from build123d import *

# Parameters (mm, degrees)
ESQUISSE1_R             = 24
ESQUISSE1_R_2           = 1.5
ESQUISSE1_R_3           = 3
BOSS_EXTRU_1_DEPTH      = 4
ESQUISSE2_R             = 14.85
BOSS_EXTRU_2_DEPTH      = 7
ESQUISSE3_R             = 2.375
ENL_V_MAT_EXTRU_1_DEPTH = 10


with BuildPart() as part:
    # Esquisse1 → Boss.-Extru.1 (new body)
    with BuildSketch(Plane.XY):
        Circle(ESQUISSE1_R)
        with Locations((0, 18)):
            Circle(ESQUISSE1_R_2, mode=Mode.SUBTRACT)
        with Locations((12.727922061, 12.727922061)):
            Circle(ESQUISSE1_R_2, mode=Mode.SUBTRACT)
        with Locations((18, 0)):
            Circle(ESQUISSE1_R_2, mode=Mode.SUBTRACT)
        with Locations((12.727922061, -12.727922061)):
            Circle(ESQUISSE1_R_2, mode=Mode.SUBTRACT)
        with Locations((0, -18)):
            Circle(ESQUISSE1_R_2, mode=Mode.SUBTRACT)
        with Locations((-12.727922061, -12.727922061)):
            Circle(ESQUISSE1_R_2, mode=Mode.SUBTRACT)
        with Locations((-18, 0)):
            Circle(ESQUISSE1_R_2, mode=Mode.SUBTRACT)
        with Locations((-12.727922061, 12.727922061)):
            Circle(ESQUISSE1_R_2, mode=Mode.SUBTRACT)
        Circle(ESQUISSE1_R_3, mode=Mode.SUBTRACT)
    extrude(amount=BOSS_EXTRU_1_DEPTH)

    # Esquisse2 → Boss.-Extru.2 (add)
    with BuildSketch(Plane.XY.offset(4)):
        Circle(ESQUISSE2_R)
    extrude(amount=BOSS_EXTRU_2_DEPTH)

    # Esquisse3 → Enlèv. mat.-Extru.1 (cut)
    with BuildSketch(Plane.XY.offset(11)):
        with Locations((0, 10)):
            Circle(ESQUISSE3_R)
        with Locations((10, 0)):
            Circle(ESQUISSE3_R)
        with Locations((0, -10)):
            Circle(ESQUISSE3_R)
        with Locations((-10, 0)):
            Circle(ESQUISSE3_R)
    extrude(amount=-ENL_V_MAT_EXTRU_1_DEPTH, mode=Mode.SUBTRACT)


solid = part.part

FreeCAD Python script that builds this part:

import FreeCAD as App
import Part
import Sketcher

doc = App.newDocument("Part")
body = doc.addObject("PartDesign::Body", "Body")

sketch1 = body.newObject("Sketcher::SketchObject", "Sketch")
sketch1.AttachmentSupport = (doc.getObject("XY_Plane"), [""])
sketch1.MapMode = "FlatFace"
sketch1.addGeometry([
    Part.Circle(App.Vector(0, 0, 0), App.Vector(0, 0, 1), 24),
    Part.Circle(App.Vector(-12.7, -12.7, 0), App.Vector(0, 0, 1), 1.5),
    Part.Circle(App.Vector(0, -18, 0), App.Vector(0, 0, 1), 1.5),
    Part.Circle(App.Vector(12.7, -12.7, 0), App.Vector(0, 0, 1), 1.5),
    Part.Circle(App.Vector(-18, 0, 0), App.Vector(0, 0, 1), 1.5),
    Part.Circle(App.Vector(-12.7, 12.7, 0), App.Vector(0, 0, 1), 1.5),
    Part.Circle(App.Vector(0, 0, 0), App.Vector(0, 0, 1), 3),
    Part.Circle(App.Vector(18, 0, 0), App.Vector(0, 0, 1), 1.5),
    Part.Circle(App.Vector(0, 18, 0), App.Vector(0, 0, 1), 1.5),
    Part.Circle(App.Vector(12.7, 12.7, 0), App.Vector(0, 0, 1), 1.5),
], False)
sketch1.addConstraint([
    Sketcher.Constraint("Coincident", 0, 3, -1, 1),
    Sketcher.Constraint("Coincident", 6, 3, -1, 1),
    Sketcher.Constraint("Equal", 1, 2),
    Sketcher.Constraint("Equal", 2, 3),
    Sketcher.Constraint("Equal", 3, 4),
    Sketcher.Constraint("Equal", 4, 5),
    Sketcher.Constraint("Equal", 5, 7),
    Sketcher.Constraint("Equal", 7, 8),
    Sketcher.Constraint("Equal", 8, 9),
    Sketcher.Constraint("Symmetric", 3, 3, 5, 3, -1, 1),
    Sketcher.Constraint("Symmetric", 4, 3, 7, 3, -1, 1),
    Sketcher.Constraint("Symmetric", 2, 3, 8, 3, -1, 1),
    Sketcher.Constraint("Symmetric", 1, 3, 9, 3, -1, 1),
    Sketcher.Constraint("Symmetric", 1, 3, 3, 3, -2),
    Sketcher.Constraint("PointOnObject", 2, 3, -2),
    Sketcher.Constraint("PointOnObject", 4, 3, -1),
    Sketcher.Constraint("Diameter", 0, 48.0),
    Sketcher.Constraint("Diameter", 1, 3.0),
    Sketcher.Constraint("Diameter", 6, 6.0),
    Sketcher.Constraint("DistanceY", 2, 3, -1, 1, 18.0),
    Sketcher.Constraint("DistanceX", 4, 3, -1, 1, 18.0),
    Sketcher.Constraint("DistanceX", 1, 3, -1, 1, 12.727922),
    Sketcher.Constraint("DistanceY", 1, 3, -1, 1, 12.727922),
])
pad1 = body.newObject("PartDesign::Pad", "Pad")
pad1.Profile = sketch1
pad1.Length = 4

sketch2 = body.newObject("Sketcher::SketchObject", "Sketch001")
sketch2.AttachmentSupport = (doc.getObject("XY_Plane"), [""])
sketch2.MapMode = "FlatFace"
sketch2.AttachmentOffset = App.Placement(App.Vector(0, 0, 4), App.Rotation())
sketch2.addGeometry(Part.Circle(App.Vector(0, 0, 0), App.Vector(0, 0, 1), 15), False)
sketch2.addConstraint([
    Sketcher.Constraint("Coincident", 0, 3, -1, 1),
    Sketcher.Constraint("Diameter", 0, 29.7),
])
pad2 = body.newObject("PartDesign::Pad", "Pad001")
pad2.Profile = sketch2
pad2.Length = 7

sketch3 = body.newObject("Sketcher::SketchObject", "Sketch002")
sketch3.AttachmentSupport = (doc.getObject("XY_Plane"), [""])
sketch3.MapMode = "FlatFace"
sketch3.AttachmentOffset = App.Placement(App.Vector(0, 0, 11), App.Rotation())
sketch3.addGeometry([
    Part.Circle(App.Vector(0, 10, 0), App.Vector(0, 0, 1), 2.4),
    Part.Circle(App.Vector(10, 0, 0), App.Vector(0, 0, 1), 2.4),
    Part.Circle(App.Vector(0, -10, 0), App.Vector(0, 0, 1), 2.4),
    Part.Circle(App.Vector(-10, 0, 0), App.Vector(0, 0, 1), 2.4),
], False)
sketch3.addConstraint([
    Sketcher.Constraint("Equal", 0, 1),
    Sketcher.Constraint("Equal", 1, 2),
    Sketcher.Constraint("Equal", 2, 3),
    Sketcher.Constraint("Symmetric", 0, 3, 2, 3, -1, 1),
    Sketcher.Constraint("Symmetric", 1, 3, 3, 3, -1, 1),
    Sketcher.Constraint("PointOnObject", 0, 3, -2),
    Sketcher.Constraint("PointOnObject", 1, 3, -1),
    Sketcher.Constraint("Diameter", 0, 4.75),
    Sketcher.Constraint("DistanceY", -1, 1, 0, 3, 10.0),
    Sketcher.Constraint("DistanceX", -1, 1, 1, 3, 10.0),
])
pocket1 = body.newObject("PartDesign::Pocket", "Pocket")
pocket1.Profile = sketch3
pocket1.Length = 10

doc.recompute()
